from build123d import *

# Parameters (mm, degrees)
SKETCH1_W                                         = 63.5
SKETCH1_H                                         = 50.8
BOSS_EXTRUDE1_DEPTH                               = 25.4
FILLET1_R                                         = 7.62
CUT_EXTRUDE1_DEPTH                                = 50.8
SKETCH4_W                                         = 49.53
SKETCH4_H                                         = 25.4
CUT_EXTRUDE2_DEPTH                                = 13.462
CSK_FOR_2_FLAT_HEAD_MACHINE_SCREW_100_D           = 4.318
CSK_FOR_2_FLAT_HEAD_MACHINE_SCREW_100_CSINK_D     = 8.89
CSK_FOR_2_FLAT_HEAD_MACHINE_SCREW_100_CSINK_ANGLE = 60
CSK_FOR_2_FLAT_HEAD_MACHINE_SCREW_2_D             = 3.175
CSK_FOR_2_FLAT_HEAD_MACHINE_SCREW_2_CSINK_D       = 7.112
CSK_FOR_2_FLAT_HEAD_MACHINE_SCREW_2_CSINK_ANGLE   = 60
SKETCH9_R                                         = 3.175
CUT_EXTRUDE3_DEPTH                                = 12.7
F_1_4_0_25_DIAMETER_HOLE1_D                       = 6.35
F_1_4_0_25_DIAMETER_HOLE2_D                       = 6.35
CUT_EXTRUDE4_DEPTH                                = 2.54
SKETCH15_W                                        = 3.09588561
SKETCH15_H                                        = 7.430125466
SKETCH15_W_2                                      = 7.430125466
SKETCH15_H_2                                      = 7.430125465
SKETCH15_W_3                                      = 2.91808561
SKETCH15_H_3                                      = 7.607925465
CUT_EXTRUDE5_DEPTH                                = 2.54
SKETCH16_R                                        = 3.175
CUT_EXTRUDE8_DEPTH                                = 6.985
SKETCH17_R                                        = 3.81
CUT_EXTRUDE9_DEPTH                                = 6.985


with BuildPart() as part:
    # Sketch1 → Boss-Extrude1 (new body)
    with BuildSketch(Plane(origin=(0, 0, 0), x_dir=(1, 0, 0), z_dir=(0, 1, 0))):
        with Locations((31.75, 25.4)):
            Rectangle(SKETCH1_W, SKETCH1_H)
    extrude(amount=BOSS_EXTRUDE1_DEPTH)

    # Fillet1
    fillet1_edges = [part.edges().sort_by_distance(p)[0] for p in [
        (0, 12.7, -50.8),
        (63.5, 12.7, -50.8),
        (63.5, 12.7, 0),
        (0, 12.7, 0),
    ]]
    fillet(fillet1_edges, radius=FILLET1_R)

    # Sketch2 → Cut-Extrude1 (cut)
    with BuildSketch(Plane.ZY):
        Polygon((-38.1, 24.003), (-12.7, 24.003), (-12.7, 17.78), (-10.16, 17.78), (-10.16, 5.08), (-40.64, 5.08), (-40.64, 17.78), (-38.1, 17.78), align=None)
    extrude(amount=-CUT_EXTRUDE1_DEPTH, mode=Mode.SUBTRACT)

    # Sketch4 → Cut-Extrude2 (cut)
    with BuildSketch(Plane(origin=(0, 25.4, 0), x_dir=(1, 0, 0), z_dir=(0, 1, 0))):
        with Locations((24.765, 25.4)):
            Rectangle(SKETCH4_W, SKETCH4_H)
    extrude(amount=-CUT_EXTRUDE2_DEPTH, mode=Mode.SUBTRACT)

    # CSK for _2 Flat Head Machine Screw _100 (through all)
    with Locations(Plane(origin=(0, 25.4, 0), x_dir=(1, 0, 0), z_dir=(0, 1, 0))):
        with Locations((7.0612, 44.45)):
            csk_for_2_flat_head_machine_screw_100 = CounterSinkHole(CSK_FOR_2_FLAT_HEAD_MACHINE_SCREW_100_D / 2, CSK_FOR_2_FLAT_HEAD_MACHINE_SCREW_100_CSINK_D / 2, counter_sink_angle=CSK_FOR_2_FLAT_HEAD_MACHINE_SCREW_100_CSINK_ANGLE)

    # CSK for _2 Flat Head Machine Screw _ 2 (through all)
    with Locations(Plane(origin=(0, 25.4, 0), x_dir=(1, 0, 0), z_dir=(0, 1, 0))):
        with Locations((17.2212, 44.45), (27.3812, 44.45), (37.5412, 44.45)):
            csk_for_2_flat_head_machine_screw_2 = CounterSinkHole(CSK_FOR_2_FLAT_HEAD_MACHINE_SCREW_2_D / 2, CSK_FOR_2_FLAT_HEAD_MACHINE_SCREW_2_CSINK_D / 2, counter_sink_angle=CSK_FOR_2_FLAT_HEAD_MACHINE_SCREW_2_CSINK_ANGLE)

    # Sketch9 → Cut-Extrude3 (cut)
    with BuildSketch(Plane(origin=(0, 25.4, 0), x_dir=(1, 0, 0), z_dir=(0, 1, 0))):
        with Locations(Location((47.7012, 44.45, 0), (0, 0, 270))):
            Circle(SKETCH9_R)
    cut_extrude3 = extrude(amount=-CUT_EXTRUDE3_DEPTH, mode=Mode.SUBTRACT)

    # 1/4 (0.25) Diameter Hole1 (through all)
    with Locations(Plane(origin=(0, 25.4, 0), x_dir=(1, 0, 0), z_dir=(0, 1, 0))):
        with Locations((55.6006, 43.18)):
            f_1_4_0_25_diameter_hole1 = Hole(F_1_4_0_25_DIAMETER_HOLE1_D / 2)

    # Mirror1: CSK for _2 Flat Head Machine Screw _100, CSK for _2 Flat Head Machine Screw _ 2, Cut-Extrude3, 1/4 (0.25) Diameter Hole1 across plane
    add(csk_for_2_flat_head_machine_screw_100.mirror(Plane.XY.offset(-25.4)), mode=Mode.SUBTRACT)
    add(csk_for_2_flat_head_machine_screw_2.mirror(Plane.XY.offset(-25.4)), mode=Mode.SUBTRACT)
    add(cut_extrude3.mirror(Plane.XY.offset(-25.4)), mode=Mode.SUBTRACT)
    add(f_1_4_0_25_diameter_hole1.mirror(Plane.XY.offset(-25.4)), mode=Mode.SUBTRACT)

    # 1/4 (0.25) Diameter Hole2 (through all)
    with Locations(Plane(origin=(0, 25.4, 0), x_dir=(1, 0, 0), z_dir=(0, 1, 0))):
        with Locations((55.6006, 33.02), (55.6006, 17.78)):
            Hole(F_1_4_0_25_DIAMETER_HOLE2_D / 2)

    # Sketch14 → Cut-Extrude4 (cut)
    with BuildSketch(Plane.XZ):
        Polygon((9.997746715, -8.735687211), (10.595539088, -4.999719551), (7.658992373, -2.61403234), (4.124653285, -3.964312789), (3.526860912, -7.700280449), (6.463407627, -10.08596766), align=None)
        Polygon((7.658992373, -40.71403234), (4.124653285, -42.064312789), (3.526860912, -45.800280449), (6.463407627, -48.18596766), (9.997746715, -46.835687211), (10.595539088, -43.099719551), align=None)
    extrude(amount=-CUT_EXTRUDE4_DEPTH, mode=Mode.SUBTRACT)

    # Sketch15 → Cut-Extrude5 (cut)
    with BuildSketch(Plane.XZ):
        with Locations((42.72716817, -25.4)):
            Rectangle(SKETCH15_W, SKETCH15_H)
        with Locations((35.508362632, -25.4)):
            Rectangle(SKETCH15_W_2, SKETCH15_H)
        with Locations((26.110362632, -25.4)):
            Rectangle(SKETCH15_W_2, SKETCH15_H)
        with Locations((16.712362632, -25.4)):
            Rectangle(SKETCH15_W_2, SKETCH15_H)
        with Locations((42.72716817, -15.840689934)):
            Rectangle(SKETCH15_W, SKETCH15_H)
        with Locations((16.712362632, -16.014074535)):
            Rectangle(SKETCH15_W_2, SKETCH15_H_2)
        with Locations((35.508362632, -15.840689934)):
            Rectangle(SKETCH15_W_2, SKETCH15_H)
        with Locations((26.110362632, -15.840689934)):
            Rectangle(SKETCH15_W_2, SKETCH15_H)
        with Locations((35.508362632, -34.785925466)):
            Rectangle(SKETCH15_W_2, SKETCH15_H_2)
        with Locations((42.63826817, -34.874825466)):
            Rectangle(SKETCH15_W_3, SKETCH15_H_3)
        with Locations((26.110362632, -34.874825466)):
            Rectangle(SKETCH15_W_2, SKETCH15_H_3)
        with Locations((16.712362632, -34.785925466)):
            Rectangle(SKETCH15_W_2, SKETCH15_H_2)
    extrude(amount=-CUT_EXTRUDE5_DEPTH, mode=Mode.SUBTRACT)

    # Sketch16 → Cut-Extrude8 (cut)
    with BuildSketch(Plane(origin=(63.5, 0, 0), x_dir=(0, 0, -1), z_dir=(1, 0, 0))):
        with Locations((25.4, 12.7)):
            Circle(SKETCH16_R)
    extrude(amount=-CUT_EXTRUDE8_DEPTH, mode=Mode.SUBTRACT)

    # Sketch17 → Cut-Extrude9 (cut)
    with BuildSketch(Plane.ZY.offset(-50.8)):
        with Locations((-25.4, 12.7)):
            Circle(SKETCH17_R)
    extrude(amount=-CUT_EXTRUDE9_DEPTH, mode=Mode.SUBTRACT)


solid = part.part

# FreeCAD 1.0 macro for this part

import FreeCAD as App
import Part
import Sketcher
Q = App.Units.Quantity


def edges_at(feature, points):
    """Names of the edges that pass closest to the given points."""
    edges = feature.Shape.Edges
    near = lambda p: min(range(len(edges)), key=lambda i: edges[i].distToShape(Part.Vertex(*p))[0])
    return sorted({f"Edge{near(p) + 1}" for p in points})

doc = App.newDocument("Part")
body = doc.addObject("PartDesign::Body", "Body")

# Sketch on XZ plane
sketch1 = body.newObject("Sketcher::SketchObject", "Sketch")
sketch1.AttachmentSupport = (doc.getObject("XZ_Plane"), [""])
sketch1.MapMode = "FlatFace"
sketch1.addGeometry(Part.LineSegment(App.Vector(0, -51, 0), App.Vector(0, 0, 0)), False)
sketch1.addGeometry(Part.LineSegment(App.Vector(0, 0, 0), App.Vector(64, 0, 0)), False)
sketch1.addGeometry(Part.LineSegment(App.Vector(64, 0, 0), App.Vector(64, -51, 0)), False)
sketch1.addGeometry(Part.LineSegment(App.Vector(64, -51, 0), App.Vector(0, -51, 0)), False)
sketch1.addConstraint(Sketcher.Constraint("Coincident", 0, 2, 1, 1))
sketch1.addConstraint(Sketcher.Constraint("Coincident", 1, 2, 2, 1))
sketch1.addConstraint(Sketcher.Constraint("Coincident", 2, 2, 3, 1))
sketch1.addConstraint(Sketcher.Constraint("Coincident", 3, 2, 0, 1))
sketch1.addConstraint(Sketcher.Constraint("Vertical", 0))
sketch1.addConstraint(Sketcher.Constraint("Horizontal", 1))
sketch1.addConstraint(Sketcher.Constraint("Vertical", 2))
sketch1.addConstraint(Sketcher.Constraint("Horizontal", 3))
sketch1.addConstraint(Sketcher.Constraint("Coincident", 0, 2, -1, 1))
sketch1.addConstraint(Sketcher.Constraint("DistanceY", 0, 1, 0, 2, Q("2 in")))
sketch1.addConstraint(Sketcher.Constraint("DistanceX", 1, 1, 1, 2, Q("2.5 in")))
pad1 = body.newObject("PartDesign::Pad", "Pad")
pad1.Profile = sketch1
pad1.Length = Q("1 in")
pad1.Reversed = True
doc.recompute()

fillet = body.newObject("PartDesign::Fillet", "Fillet")
fillet.Base = (pad1, edges_at(pad1, [
    (0, 12.7, -50.8),
    (63.5, 12.7, -50.8),
    (63.5, 12.7, 0),
    (0, 12.7, 0),
]))
fillet.Radius = Q("0.3 in")

# Sketch on YZ plane
sketch2 = body.newObject("Sketcher::SketchObject", "Sketch001")
sketch2.AttachmentSupport = (doc.getObject("YZ_Plane"), [""])
sketch2.MapMode = "FlatFace"
sketch2.addGeometry(Part.LineSegment(App.Vector(24, -12.7, 0), App.Vector(24, -38.1, 0)), False)
sketch2.addGeometry(Part.LineSegment(App.Vector(24, -38.1, 0), App.Vector(17.8, -38.1, 0)), False)
sketch2.addGeometry(Part.LineSegment(App.Vector(17.8, -38.1, 0), App.Vector(17.8, -40.6, 0)), False)
sketch2.addGeometry(Part.LineSegment(App.Vector(17.8, -40.6, 0), App.Vector(5.1, -40.6, 0)), False)
sketch2.addGeometry(Part.LineSegment(App.Vector(5.1, -40.6, 0), App.Vector(5.1, -10.2, 0)), False)
sketch2.addGeometry(Part.LineSegment(App.Vector(5.1, -10.2, 0), App.Vector(17.8, -10.2, 0)), False)
sketch2.addGeometry(Part.LineSegment(App.Vector(17.8, -10.2, 0), App.Vector(17.8, -12.7, 0)), False)
sketch2.addGeometry(Part.LineSegment(App.Vector(17.8, -12.7, 0), App.Vector(24, -12.7, 0)), False)
sketch2.addConstraint(Sketcher.Constraint("Coincident", 0, 2, 1, 1))
sketch2.addConstraint(Sketcher.Constraint("Coincident", 1, 2, 2, 1))
sketch2.addConstraint(Sketcher.Constraint("Coincident", 2, 2, 3, 1))
sketch2.addConstraint(Sketcher.Constraint("Coincident", 3, 2, 4, 1))
sketch2.addConstraint(Sketcher.Constraint("Coincident", 4, 2, 5, 1))
sketch2.addConstraint(Sketcher.Constraint("Coincident", 5, 2, 6, 1))
sketch2.addConstraint(Sketcher.Constraint("Coincident", 6, 2, 7, 1))
sketch2.addConstraint(Sketcher.Constraint("Coincident", 7, 2, 0, 1))
sketch2.addConstraint(Sketcher.Constraint("Vertical", 0))
sketch2.addConstraint(Sketcher.Constraint("Horizontal", 1))
sketch2.addConstraint(Sketcher.Constraint("Vertical", 2))
sketch2.addConstraint(Sketcher.Constraint("Horizontal", 3))
sketch2.addConstraint(Sketcher.Constraint("Vertical", 4))
sketch2.addConstraint(Sketcher.Constraint("Horizontal", 5))
sketch2.addConstraint(Sketcher.Constraint("Vertical", 6))
sketch2.addConstraint(Sketcher.Constraint("Horizontal", 7))
sketch2.addConstraint(Sketcher.Constraint("Vertical", 2, 2, 5, 2))
sketch2.addConstraint(Sketcher.Constraint("Equal", 2, 6))
sketch2.addConstraint(Sketcher.Constraint("DistanceY", 0, 2, 0, 1, Q("1 in")))
sketch2.addConstraint(Sketcher.Constraint("DistanceX", 3, 2, 3, 1, Q("0.5 in")))
sketch2.addConstraint(Sketcher.Constraint("DistanceY", 2, 2, 2, 1, Q("0.1 in")))
sketch2.addConstraint(Sketcher.Constraint("DistanceY", 0, 2, -1, 1, Q("1.5 in")))
sketch2.addConstraint(Sketcher.Constraint("DistanceX", -1, 1, 1, 2, Q("0.7 in")))
sketch2.addConstraint(Sketcher.Constraint("DistanceX", 1, 2, 1, 1, Q("0.245 in")))
pocket1 = body.newObject("PartDesign::Pocket", "Pocket")
pocket1.Profile = sketch2
pocket1.Length = Q("2 in")
pocket1.Reversed = True

# Sketch on XZ plane
sketch3 = body.newObject("Sketcher::SketchObject", "Sketch002")
sketch3.AttachmentSupport = (doc.getObject("XZ_Plane"), [""])
sketch3.MapMode = "FlatFace"
sketch3.AttachmentOffset = App.Placement(App.Vector(0, 0, -1 * 25.4), App.Rotation())
sketch3.addGeometry(Part.LineSegment(App.Vector(0, -38, 0), App.Vector(0, -13, 0)), False)
sketch3.addGeometry(Part.LineSegment(App.Vector(0, -13, 0), App.Vector(50, -13, 0)), False)
sketch3.addGeometry(Part.LineSegment(App.Vector(50, -13, 0), App.Vector(50, -38, 0)), False)
sketch3.addGeometry(Part.LineSegment(App.Vector(50, -38, 0), App.Vector(0, -38, 0)), False)
sketch3.addConstraint(Sketcher.Constraint("Coincident", 0, 2, 1, 1))
sketch3.addConstraint(Sketcher.Constraint("Coincident", 1, 2, 2, 1))
sketch3.addConstraint(Sketcher.Constraint("Coincident", 2, 2, 3, 1))
sketch3.addConstraint(Sketcher.Constraint("Coincident", 3, 2, 0, 1))
sketch3.addConstraint(Sketcher.Constraint("Vertical", 0))
sketch3.addConstraint(Sketcher.Constraint("Horizontal", 1))
sketch3.addConstraint(Sketcher.Constraint("Vertical", 2))
sketch3.addConstraint(Sketcher.Constraint("Horizontal", 3))
sketch3.addConstraint(Sketcher.Constraint("PointOnObject", 0, 2, -2))
sketch3.addConstraint(Sketcher.Constraint("DistanceY", 0, 1, 0, 2, Q("1 in")))
sketch3.addConstraint(Sketcher.Constraint("DistanceX", 1, 1, 1, 2, Q("1.95 in")))
sketch3.addConstraint(Sketcher.Constraint("DistanceY", 0, 2, -1, 1, Q("0.5 in")))
pocket2 = body.newObject("PartDesign::Pocket", "Pocket001")
pocket2.Profile = sketch3
pocket2.Length = Q("0.53 in")
pocket2.Reversed = True

# Sketch on XZ plane
sketch4 = body.newObject("Sketcher::SketchObject", "Sketch003")
sketch4.AttachmentSupport = (doc.getObject("XZ_Plane"), [""])
sketch4.MapMode = "FlatFace"
sketch4.AttachmentOffset = App.Placement(App.Vector(0, 0, -1 * 25.4), App.Rotation())
sketch4.addGeometry(Part.Circle(App.Vector(7.1, -44.5, 0), App.Vector(0, 0, 1), 2.2), False)
sketch4.addConstraint(Sketcher.Constraint("Diameter", 0, Q("0.17 in")))
sketch4.addConstraint(Sketcher.Constraint("DistanceY", 0, 3, -1, 1, Q("1.75 in")))
sketch4.addConstraint(Sketcher.Constraint("DistanceX", -1, 1, 0, 3, Q("0.278 in")))
doc.recompute()
hole = body.newObject("PartDesign::Hole", "Hole")
hole.Profile = sketch4
hole.ThreadType = "None"
hole.Diameter = Q("0.17 in")
hole.DepthType = "ThroughAll"
hole.HoleCutType = "Countersink"
hole.HoleCutDiameter = Q("0.35 in")
hole.HoleCutCountersinkAngle = 60
hole.Reversed = True

# Sketch on XZ plane
sketch5 = body.newObject("Sketcher::SketchObject", "Sketch004")
sketch5.AttachmentSupport = (doc.getObject("XZ_Plane"), [""])
sketch5.MapMode = "FlatFace"
sketch5.AttachmentOffset = App.Placement(App.Vector(0, 0, -1 * 25.4), App.Rotation())
sketch5.addGeometry(Part.Circle(App.Vector(17.2, -44.5, 0), App.Vector(0, 0, 1), 1.6), False)
sketch5.addGeometry(Part.Circle(App.Vector(27.4, -44.5, 0), App.Vector(0, 0, 1), 1.6), False)
sketch5.addGeometry(Part.Circle(App.Vector(37.5, -44.5, 0), App.Vector(0, 0, 1), 1.6), False)
sketch5.addConstraint(Sketcher.Constraint("Equal", 0, 1))
sketch5.addConstraint(Sketcher.Constraint("Equal", 1, 2))
sketch5.addConstraint(Sketcher.Constraint("Horizontal", 0, 3, 1, 3))
sketch5.addConstraint(Sketcher.Constraint("Horizontal", 1, 3, 2, 3))
sketch5.addConstraint(Sketcher.Constraint("Diameter", 0, Q("0.125 in")))
sketch5.addConstraint(Sketcher.Constraint("DistanceX", 0, 3, 1, 3, Q("0.4 in")))
sketch5.addConstraint(Sketcher.Constraint("DistanceX", 1, 3, 2, 3, Q("0.4 in")))
sketch5.addConstraint(Sketcher.Constraint("DistanceY", 0, 3, -1, 1, Q("1.75 in")))
sketch5.addConstraint(Sketcher.Constraint("DistanceX", -1, 1, 0, 3, Q("0.678 in")))
doc.recompute()
hole2 = body.newObject("PartDesign::Hole", "Hole001")
hole2.Profile = sketch5
hole2.ThreadType = "None"
hole2.Diameter = Q("0.125 in")
hole2.DepthType = "ThroughAll"
hole2.HoleCutType = "Countersink"
hole2.HoleCutDiameter = Q("0.28 in")
hole2.HoleCutCountersinkAngle = 60
hole2.Reversed = True

# Sketch on XZ plane
sketch6 = body.newObject("Sketcher::SketchObject", "Sketch005")
sketch6.AttachmentSupport = (doc.getObject("XZ_Plane"), [""])
sketch6.MapMode = "FlatFace"
sketch6.AttachmentOffset = App.Placement(App.Vector(0, 0, -1 * 25.4), App.Rotation())
sketch6.addGeometry(Part.Circle(App.Vector(47.7, -44.5, 0), App.Vector(0, 0, 1), 3.2), False)
sketch6.addConstraint(Sketcher.Constraint("Diameter", 0, Q("0.25 in")))
sketch6.addConstraint(Sketcher.Constraint("DistanceY", 0, 3, -1, 1, Q("1.75 in")))
sketch6.addConstraint(Sketcher.Constraint("DistanceX", -1, 1, 0, 3, Q("1.878 in")))
pocket3 = body.newObject("PartDesign::Pocket", "Pocket002")
pocket3.Profile = sketch6
pocket3.Length = Q("0.5 in")
pocket3.Reversed = True

# Sketch on XZ plane
sketch7 = body.newObject("Sketcher::SketchObject", "Sketch006")
sketch7.AttachmentSupport = (doc.getObject("XZ_Plane"), [""])
sketch7.MapMode = "FlatFace"
sketch7.AttachmentOffset = App.Placement(App.Vector(0, 0, -1 * 25.4), App.Rotation())
sketch7.addGeometry(Part.Circle(App.Vector(55.6, -43.2, 0), App.Vector(0, 0, 1), 3.2), False)
sketch7.addConstraint(Sketcher.Constraint("Diameter", 0, Q("0.25 in")))
sketch7.addConstraint(Sketcher.Constraint("DistanceY", 0, 3, -1, 1, Q("1.7 in")))
sketch7.addConstraint(Sketcher.Constraint("DistanceX", -1, 1, 0, 3, Q("2.189 in")))
doc.recompute()
hole3 = body.newObject("PartDesign::Hole", "Hole002")
hole3.Profile = sketch7
hole3.ThreadType = "None"
hole3.Diameter = Q("0.25 in")
hole3.DepthType = "ThroughAll"
hole3.Reversed = True
doc.recompute()

datumplane = body.newObject("PartDesign::Plane", "DatumPlane")
datumplane.AttachmentSupport = (doc.getObject("XY_Plane"), [""])
datumplane.MapMode = "FlatFace"
datumplane.AttachmentOffset = App.Placement(App.Vector(0, 0, -1 * 25.4), App.Rotation())
mirrored = body.newObject("PartDesign::Mirrored", "Mirrored")
mirrored.Originals = [hole, hole2, pocket3, hole3]
mirrored.MirrorPlane = (datumplane, [""])
body.Tip = mirrored

# Sketch on XZ plane
sketch8 = body.newObject("Sketcher::SketchObject", "Sketch007")
sketch8.AttachmentSupport = (doc.getObject("XZ_Plane"), [""])
sketch8.MapMode = "FlatFace"
sketch8.AttachmentOffset = App.Placement(App.Vector(0, 0, -1 * 25.4), App.Rotation())
sketch8.addGeometry(Part.Circle(App.Vector(55.6, -33, 0), App.Vector(0, 0, 1), 3.2), False)
sketch8.addGeometry(Part.Circle(App.Vector(55.6, -17.8, 0), App.Vector(0, 0, 1), 3.2), False)
sketch8.addConstraint(Sketcher.Constraint("Equal", 0, 1))
sketch8.addConstraint(Sketcher.Constraint("Vertical", 0, 3, 1, 3))
sketch8.addConstraint(Sketcher.Constraint("Diameter", 0, Q("0.25 in")))
sketch8.addConstraint(Sketcher.Constraint("DistanceY", 0, 3, -1, 1, Q("1.3 in")))
sketch8.addConstraint(Sketcher.Constraint("DistanceY", 1, 3, -1, 1, Q("0.7 in")))
sketch8.addConstraint(Sketcher.Constraint("DistanceX", -1, 1, 0, 3, Q("2.189 in")))
doc.recompute()
hole4 = body.newObject("PartDesign::Hole", "Hole003")
hole4.Profile = sketch8
hole4.ThreadType = "None"
hole4.Diameter = Q("0.25 in")
hole4.DepthType = "ThroughAll"
hole4.Reversed = True

# Sketch on XZ plane
sketch9 = body.newObject("Sketcher::SketchObject", "Sketch008")
sketch9.AttachmentSupport = (doc.getObject("XZ_Plane"), [""])
sketch9.MapMode = "FlatFace"
sketch9.addGeometry(Part.LineSegment(App.Vector(10, -8.7, 0), App.Vector(10.6, -5, 0)), False)
sketch9.addGeometry(Part.LineSegment(App.Vector(10.6, -5, 0), App.Vector(7.7, -2.6, 0)), False)
sketch9.addGeometry(Part.LineSegment(App.Vector(7.7, -2.6, 0), App.Vector(4.1, -4, 0)), False)
sketch9.addGeometry(Part.LineSegment(App.Vector(4.1, -4, 0), App.Vector(3.5, -7.7, 0)), False)
sketch9.addGeometry(Part.LineSegment(App.Vector(3.5, -7.7, 0), App.Vector(6.5, -10.1, 0)), False)
sketch9.addGeometry(Part.LineSegment(App.Vector(6.5, -10.1, 0), App.Vector(10, -8.7, 0)), False)
sketch9.addGeometry(Part.LineSegment(App.Vector(7.7, -40.7, 0), App.Vector(4.1, -42.1, 0)), False)
sketch9.addGeometry(Part.LineSegment(App.Vector(4.1, -42.1, 0), App.Vector(3.5, -45.8, 0)), False)
sketch9.addGeometry(Part.LineSegment(App.Vector(3.5, -45.8, 0), App.Vector(6.5, -48.2, 0)), False)
sketch9.addGeometry(Part.LineSegment(App.Vector(6.5, -48.2, 0), App.Vector(10, -46.8, 0)), False)
sketch9.addGeometry(Part.LineSegment(App.Vector(10, -46.8, 0), App.Vector(10.6, -43.1, 0)), False)
sketch9.addGeometry(Part.LineSegment(App.Vector(10.6, -43.1, 0), App.Vector(7.7, -40.7, 0)), False)
sketch9.addConstraint(Sketcher.Constraint("Coincident", 0, 2, 1, 1))
sketch9.addConstraint(Sketcher.Constraint("Coincident", 1, 2, 2, 1))
sketch9.addConstraint(Sketcher.Constraint("Coincident", 2, 2, 3, 1))
sketch9.addConstraint(Sketcher.Constraint("Coincident", 3, 2, 4, 1))
sketch9.addConstraint(Sketcher.Constraint("Coincident", 4, 2, 5, 1))
sketch9.addConstraint(Sketcher.Constraint("Coincident", 5, 2, 0, 1))
sketch9.addConstraint(Sketcher.Constraint("Coincident", 6, 2, 7, 1))
sketch9.addConstraint(Sketcher.Constraint("Coincident", 7, 2, 8, 1))
sketch9.addConstraint(Sketcher.Constraint("Coincident", 8, 2, 9, 1))
sketch9.addConstraint(Sketcher.Constraint("Coincident", 9, 2, 10, 1))
sketch9.addConstraint(Sketcher.Constraint("Coincident", 10, 2, 11, 1))
sketch9.addConstraint(Sketcher.Constraint("Coincident", 11, 2, 6, 1))
sketch9.addConstraint(Sketcher.Constraint("Parallel", 0, 3))
sketch9.addConstraint(Sketcher.Constraint("Parallel", 1, 4))
sketch9.addConstraint(Sketcher.Constraint("Parallel", 2, 5))
sketch9.addConstraint(Sketcher.Constraint("Parallel", 5, 6))
sketch9.addConstraint(Sketcher.Constraint("Parallel", 3, 7))
sketch9.addConstraint(Sketcher.Constraint("Parallel", 4, 8))
sketch9.addConstraint(Sketcher.Constraint("Parallel", 6, 9))
sketch9.addConstraint(Sketcher.Constraint("Parallel", 7, 10))
sketch9.addConstraint(Sketcher.Constraint("Parallel", 8, 11))
sketch9.addConstraint(Sketcher.Constraint("Vertical", 2, 2, 6, 2))
sketch9.addConstraint(Sketcher.Constraint("Vertical", 3, 2, 7, 2))
sketch9.addConstraint(Sketcher.Constraint("Vertical", 4, 2, 8, 2))
sketch9.addConstraint(Sketcher.Constraint("Vertical", 5, 2, 9, 2))
sketch9.addConstraint(Sketcher.Constraint("Vertical", 0, 2, 10, 2))
sketch9.addConstraint(Sketcher.Constraint("Equal", 0, 1))
sketch9.addConstraint(Sketcher.Constraint("Equal", 1, 2))
sketch9.addConstraint(Sketcher.Constraint("Equal", 2, 3))
sketch9.addConstraint(Sketcher.Constraint("DistanceY", 6, 2, 2, 2, Q("1.5 in")))
sketch9.addConstraint(Sketcher.Constraint("Distance", 0, Q("3.783492 mm")))
sketch9.addConstraint(Sketcher.Constraint("DistanceX", -1, 1, 0, 2, Q("10.595539 mm")))
sketch9.addConstraint(Sketcher.Constraint("DistanceY", 0, 2, -1, 1, Q("4.99972 mm")))
sketch9.addConstraint(Sketcher.Constraint("DistanceX", -1, 1, 3, 2, Q("3.526861 mm")))
sketch9.addConstraint(Sketcher.Constraint("DistanceY", 3, 2, -1, 1, Q("7.70028 mm")))
sketch9.addConstraint(Sketcher.Constraint("DistanceX", 2, 2, 1, 2, Q("3.534339 mm")))
pocket4 = body.newObject("PartDesign::Pocket", "Pocket003")
pocket4.Profile = sketch9
pocket4.Length = Q("0.1 in")

# Sketch on XZ plane
sketch10 = body.newObject("Sketcher::SketchObject", "Sketch009")
sketch10.AttachmentSupport = (doc.getObject("XZ_Plane"), [""])
sketch10.MapMode = "FlatFace"
sketch10.addGeometry(Part.LineSegment(App.Vector(41.2, -21.7, 0), App.Vector(41.2, -29.1, 0)), False)
sketch10.addGeometry(Part.LineSegment(App.Vector(41.2, -29.1, 0), App.Vector(44.3, -29.1, 0)), False)
sketch10.addGeometry(Part.LineSegment(App.Vector(44.3, -29.1, 0), App.Vector(44.3, -21.7, 0)), False)
sketch10.addGeometry(Part.LineSegment(App.Vector(44.3, -21.7, 0), App.Vector(41.2, -21.7, 0)), False)
sketch10.addGeometry(Part.LineSegment(App.Vector(31.8, -21.7, 0), App.Vector(31.8, -29.1, 0)), False)
sketch10.addGeometry(Part.LineSegment(App.Vector(31.8, -29.1, 0), App.Vector(39.2, -29.1, 0)), False)
sketch10.addGeometry(Part.LineSegment(App.Vector(39.2, -29.1, 0), App.Vector(39.2, -21.7, 0)), False)
sketch10.addGeometry(Part.LineSegment(App.Vector(39.2, -21.7, 0), App.Vector(31.8, -21.7, 0)), False)
sketch10.addGeometry(Part.LineSegment(App.Vector(22.4, -21.7, 0), App.Vector(22.4, -29.1, 0)), False)
sketch10.addGeometry(Part.LineSegment(App.Vector(22.4, -29.1, 0), App.Vector(29.8, -29.1, 0)), False)
sketch10.addGeometry(Part.LineSegment(App.Vector(29.8, -29.1, 0), App.Vector(29.8, -21.7, 0)), False)
sketch10.addGeometry(Part.LineSegment(App.Vector(29.8, -21.7, 0), App.Vector(22.4, -21.7, 0)), False)
sketch10.addGeometry(Part.LineSegment(App.Vector(13, -21.7, 0), App.Vector(13, -29.1, 0)), False)
sketch10.addGeometry(Part.LineSegment(App.Vector(13, -29.1, 0), App.Vector(20.4, -29.1, 0)), False)
sketch10.addGeometry(Part.LineSegment(App.Vector(20.4, -29.1, 0), App.Vector(20.4, -21.7, 0)), False)
sketch10.addGeometry(Part.LineSegment(App.Vector(20.4, -21.7, 0), App.Vector(13, -21.7, 0)), False)
sketch10.addGeometry(Part.LineSegment(App.Vector(41.2, -12.1, 0), App.Vector(41.2, -19.6, 0)), False)
sketch10.addGeometry(Part.LineSegment(App.Vector(41.2, -19.6, 0), App.Vector(44.3, -19.6, 0)), False)
sketch10.addGeometry(Part.LineSegment(App.Vector(44.3, -19.6, 0), App.Vector(44.3, -12.1, 0)), False)
sketch10.addGeometry(Part.LineSegment(App.Vector(44.3, -12.1, 0), App.Vector(41.2, -12.1, 0)), False)
sketch10.addGeometry(Part.LineSegment(App.Vector(13, -12.3, 0), App.Vector(13, -19.7, 0)), False)
sketch10.addGeometry(Part.LineSegment(App.Vector(13, -19.7, 0), App.Vector(20.4, -19.7, 0)), False)
sketch10.addGeometry(Part.LineSegment(App.Vector(20.4, -19.7, 0), App.Vector(20.4, -12.3, 0)), False)
sketch10.addGeometry(Part.LineSegment(App.Vector(20.4, -12.3, 0), App.Vector(13, -12.3, 0)), False)
sketch10.addGeometry(Part.LineSegment(App.Vector(31.8, -12.1, 0), App.Vector(31.8, -19.6, 0)), False)
sketch10.addGeometry(Part.LineSegment(App.Vector(31.8, -19.6, 0), App.Vector(39.2, -19.6, 0)), False)
sketch10.addGeometry(Part.LineSegment(App.Vector(39.2, -19.6, 0), App.Vector(39.2, -12.1, 0)), False)
sketch10.addGeometry(Part.LineSegment(App.Vector(39.2, -12.1, 0), App.Vector(31.8, -12.1, 0)), False)
sketch10.addGeometry(Part.LineSegment(App.Vector(22.4, -12.1, 0), App.Vector(22.4, -19.6, 0)), False)
sketch10.addGeometry(Part.LineSegment(App.Vector(22.4, -19.6, 0), App.Vector(29.8, -19.6, 0)), False)
sketch10.addGeometry(Part.LineSegment(App.Vector(29.8, -19.6, 0), App.Vector(29.8, -12.1, 0)), False)
sketch10.addGeometry(Part.LineSegment(App.Vector(29.8, -12.1, 0), App.Vector(22.4, -12.1, 0)), False)
sketch10.addGeometry(Part.LineSegment(App.Vector(31.8, -31.1, 0), App.Vector(31.8, -38.5, 0)), False)
sketch10.addGeometry(Part.LineSegment(App.Vector(31.8, -38.5, 0), App.Vector(39.2, -38.5, 0)), False)
sketch10.addGeometry(Part.LineSegment(App.Vector(39.2, -38.5, 0), App.Vector(39.2, -31.1, 0)), False)
sketch10.addGeometry(Part.LineSegment(App.Vector(39.2, -31.1, 0), App.Vector(31.8, -31.1, 0)), False)
sketch10.addGeometry(Part.LineSegment(App.Vector(41.2, -31.1, 0), App.Vector(41.2, -38.7, 0)), False)
sketch10.addGeometry(Part.LineSegment(App.Vector(41.2, -38.7, 0), App.Vector(44.1, -38.7, 0)), False)
sketch10.addGeometry(Part.LineSegment(App.Vector(44.1, -38.7, 0), App.Vector(44.1, -31.1, 0)), False)
sketch10.addGeometry(Part.LineSegment(App.Vector(44.1, -31.1, 0), App.Vector(41.2, -31.1, 0)), False)
sketch10.addGeometry(Part.LineSegment(App.Vector(22.4, -31.1, 0), App.Vector(22.4, -38.7, 0)), False)
sketch10.addGeometry(Part.LineSegment(App.Vector(22.4, -38.7, 0), App.Vector(29.8, -38.7, 0)), False)
sketch10.addGeometry(Part.LineSegment(App.Vector(29.8, -38.7, 0), App.Vector(29.8, -31.1, 0)), False)
sketch10.addGeometry(Part.LineSegment(App.Vector(29.8, -31.1, 0), App.Vector(22.4, -31.1, 0)), False)
sketch10.addGeometry(Part.LineSegment(App.Vector(13, -31.1, 0), App.Vector(13, -38.5, 0)), False)
sketch10.addGeometry(Part.LineSegment(App.Vector(13, -38.5, 0), App.Vector(20.4, -38.5, 0)), False)
sketch10.addGeometry(Part.LineSegment(App.Vector(20.4, -38.5, 0), App.Vector(20.4, -31.1, 0)), False)
sketch10.addGeometry(Part.LineSegment(App.Vector(20.4, -31.1, 0), App.Vector(13, -31.1, 0)), False)
sketch10.addConstraint(Sketcher.Constraint("Coincident", 0, 2, 1, 1))
sketch10.addConstraint(Sketcher.Constraint("Coincident", 1, 2, 2, 1))
sketch10.addConstraint(Sketcher.Constraint("Coincident", 2, 2, 3, 1))
sketch10.addConstraint(Sketcher.Constraint("Coincident", 3, 2, 0, 1))
sketch10.addConstraint(Sketcher.Constraint("Coincident", 4, 2, 5, 1))
sketch10.addConstraint(Sketcher.Constraint("Coincident", 5, 2, 6, 1))
sketch10.addConstraint(Sketcher.Constraint("Coincident", 6, 2, 7, 1))
sketch10.addConstraint(Sketcher.Constraint("Coincident", 7, 2, 4, 1))
sketch10.addConstraint(Sketcher.Constraint("Coincident", 8, 2, 9, 1))
sketch10.addConstraint(Sketcher.Constraint("Coincident", 9, 2, 10, 1))
sketch10.addConstraint(Sketcher.Constraint("Coincident", 10, 2, 11, 1))
sketch10.addConstraint(Sketcher.Constraint("Coincident", 11, 2, 8, 1))
sketch10.addConstraint(Sketcher.Constraint("Coincident", 12, 2, 13, 1))
sketch10.addConstraint(Sketcher.Constraint("Coincident", 13, 2, 14, 1))
sketch10.addConstraint(Sketcher.Constraint("Coincident", 14, 2, 15, 1))
sketch10.addConstraint(Sketcher.Constraint("Coincident", 15, 2, 12, 1))
sketch10.addConstraint(Sketcher.Constraint("Coincident", 16, 2, 17, 1))
sketch10.addConstraint(Sketcher.Constraint("Coincident", 17, 2, 18, 1))
sketch10.addConstraint(Sketcher.Constraint("Coincident", 18, 2, 19, 1))
sketch10.addConstraint(Sketcher.Constraint("Coincident", 19, 2, 16, 1))
sketch10.addConstraint(Sketcher.Constraint("Coincident", 20, 2, 21, 1))
sketch10.addConstraint(Sketcher.Constraint("Coincident", 21, 2, 22, 1))
sketch10.addConstraint(Sketcher.Constraint("Coincident", 22, 2, 23, 1))
sketch10.addConstraint(Sketcher.Constraint("Coincident", 23, 2, 20, 1))
sketch10.addConstraint(Sketcher.Constraint("Coincident", 24, 2, 25, 1))
sketch10.addConstraint(Sketcher.Constraint("Coincident", 25, 2, 26, 1))
sketch10.addConstraint(Sketcher.Constraint("Coincident", 26, 2, 27, 1))
sketch10.addConstraint(Sketcher.Constraint("Coincident", 27, 2, 24, 1))
sketch10.addConstraint(Sketcher.Constraint("Coincident", 28, 2, 29, 1))
sketch10.addConstraint(Sketcher.Constraint("Coincident", 29, 2, 30, 1))
sketch10.addConstraint(Sketcher.Constraint("Coincident", 30, 2, 31, 1))
sketch10.addConstraint(Sketcher.Constraint("Coincident", 31, 2, 28, 1))
sketch10.addConstraint(Sketcher.Constraint("Coincident", 32, 2, 33, 1))
sketch10.addConstraint(Sketcher.Constraint("Coincident", 33, 2, 34, 1))
sketch10.addConstraint(Sketcher.Constraint("Coincident", 34, 2, 35, 1))
sketch10.addConstraint(Sketcher.Constraint("Coincident", 35, 2, 32, 1))
sketch10.addConstraint(Sketcher.Constraint("Coincident", 36, 2, 37, 1))
sketch10.addConstraint(Sketcher.Constraint("Coincident", 37, 2, 38, 1))
sketch10.addConstraint(Sketcher.Constraint("Coincident", 38, 2, 39, 1))
sketch10.addConstraint(Sketcher.Constraint("Coincident", 39, 2, 36, 1))
sketch10.addConstraint(Sketcher.Constraint("Coincident", 40, 2, 41, 1))
sketch10.addConstraint(Sketcher.Constraint("Coincident", 41, 2, 42, 1))
sketch10.addConstraint(Sketcher.Constraint("Coincident", 42, 2, 43, 1))
sketch10.addConstraint(Sketcher.Constraint("Coincident", 43, 2, 40, 1))
sketch10.addConstraint(Sketcher.Constraint("Coincident", 44, 2, 45, 1))
sketch10.addConstraint(Sketcher.Constraint("Coincident", 45, 2, 46, 1))
sketch10.addConstraint(Sketcher.Constraint("Coincident", 46, 2, 47, 1))
sketch10.addConstraint(Sketcher.Constraint("Coincident", 47, 2, 44, 1))
sketch10.addConstraint(Sketcher.Constraint("Vertical", 0))
sketch10.addConstraint(Sketcher.Constraint("Horizontal", 1))
sketch10.addConstraint(Sketcher.Constraint("Vertical", 2))
sketch10.addConstraint(Sketcher.Constraint("Horizontal", 3))
sketch10.addConstraint(Sketcher.Constraint("Vertical", 4))
sketch10.addConstraint(Sketcher.Constraint("Horizontal", 5))
sketch10.addConstraint(Sketcher.Constraint("Vertical", 6))
sketch10.addConstraint(Sketcher.Constraint("Horizontal", 7))
sketch10.addConstraint(Sketcher.Constraint("Vertical", 8))
sketch10.addConstraint(Sketcher.Constraint("Horizontal", 9))
sketch10.addConstraint(Sketcher.Constraint("Vertical", 10))
sketch10.addConstraint(Sketcher.Constraint("Horizontal", 11))
sketch10.addConstraint(Sketcher.Constraint("Vertical", 12))
sketch10.addConstraint(Sketcher.Constraint("Horizontal", 13))
sketch10.addConstraint(Sketcher.Constraint("Vertical", 14))
sketch10.addConstraint(Sketcher.Constraint("Horizontal", 15))
sketch10.addConstraint(Sketcher.Constraint("Vertical", 16))
sketch10.addConstraint(Sketcher.Constraint("Horizontal", 17))
sketch10.addConstraint(Sketcher.Constraint("Vertical", 18))
sketch10.addConstraint(Sketcher.Constraint("Horizontal", 19))
sketch10.addConstraint(Sketcher.Constraint("Vertical", 20))
sketch10.addConstraint(Sketcher.Constraint("Horizontal", 21))
sketch10.addConstraint(Sketcher.Constraint("Vertical", 22))
sketch10.addConstraint(Sketcher.Constraint("Horizontal", 23))
sketch10.addConstraint(Sketcher.Constraint("Vertical", 24))
sketch10.addConstraint(Sketcher.Constraint("Horizontal", 25))
sketch10.addConstraint(Sketcher.Constraint("Vertical", 26))
sketch10.addConstraint(Sketcher.Constraint("Horizontal", 27))
sketch10.addConstraint(Sketcher.Constraint("Vertical", 28))
sketch10.addConstraint(Sketcher.Constraint("Horizontal", 29))
sketch10.addConstraint(Sketcher.Constraint("Vertical", 30))
sketch10.addConstraint(Sketcher.Constraint("Horizontal", 31))
sketch10.addConstraint(Sketcher.Constraint("Vertical", 32))
sketch10.addConstraint(Sketcher.Constraint("Horizontal", 33))
sketch10.addConstraint(Sketcher.Constraint("Vertical", 34))
sketch10.addConstraint(Sketcher.Constraint("Horizontal", 35))
sketch10.addConstraint(Sketcher.Constraint("Vertical", 36))
sketch10.addConstraint(Sketcher.Constraint("Horizontal", 37))
sketch10.addConstraint(Sketcher.Constraint("Vertical", 38))
sketch10.addConstraint(Sketcher.Constraint("Horizontal", 39))
sketch10.addConstraint(Sketcher.Constraint("Vertical", 40))
sketch10.addConstraint(Sketcher.Constraint("Horizontal", 41))
sketch10.addConstraint(Sketcher.Constraint("Vertical", 42))
sketch10.addConstraint(Sketcher.Constraint("Horizontal", 43))
sketch10.addConstraint(Sketcher.Constraint("Vertical", 44))
sketch10.addConstraint(Sketcher.Constraint("Horizontal", 45))
sketch10.addConstraint(Sketcher.Constraint("Vertical", 46))
sketch10.addConstraint(Sketcher.Constraint("Horizontal", 47))
sketch10.addConstraint(Sketcher.Constraint("Horizontal", 1, 2, 4, 2))
sketch10.addConstraint(Sketcher.Constraint("Horizontal", 3, 2, 6, 2))
sketch10.addConstraint(Sketcher.Constraint("Horizontal", 5, 2, 8, 2))
sketch10.addConstraint(Sketcher.Constraint("Horizontal", 7, 2, 10, 2))
sketch10.addConstraint(Sketcher.Constraint("Horizontal", 9, 2, 12, 2))
sketch10.addConstraint(Sketcher.Constraint("Horizontal", 11, 2, 14, 2))
sketch10.addConstraint(Sketcher.Constraint("Horizontal", 17, 2, 24, 2))
sketch10.addConstraint(Sketcher.Constraint("Horizontal", 19, 2, 26, 2))
sketch10.addConstraint(Sketcher.Constraint("Horizontal", 25, 2, 28, 2))
sketch10.addConstraint(Sketcher.Constraint("Horizontal", 27, 2, 30, 2))
sketch10.addConstraint(Sketcher.Constraint("Horizontal", 35, 2, 38, 2))
sketch10.addConstraint(Sketcher.Constraint("Horizontal", 37, 2, 40, 2))
sketch10.addConstraint(Sketcher.Constraint("Horizontal", 39, 2, 42, 2))
sketch10.addConstraint(Sketcher.Constraint("Horizontal", 33, 2, 44, 2))
sketch10.addConstraint(Sketcher.Constraint("Horizontal", 43, 2, 46, 2))
sketch10.addConstraint(Sketcher.Constraint("Vertical", 3, 2, 16, 2))
sketch10.addConstraint(Sketcher.Constraint("Vertical", 2, 2, 17, 2))
sketch10.addConstraint(Sketcher.Constraint("Vertical", 15, 2, 20, 2))
sketch10.addConstraint(Sketcher.Constraint("Vertical", 14, 2, 21, 2))
sketch10.addConstraint(Sketcher.Constraint("Vertical", 7, 2, 24, 2))
sketch10.addConstraint(Sketcher.Constraint("Vertical", 6, 2, 25, 2))
sketch10.addConstraint(Sketcher.Constraint("Vertical", 11, 2, 28, 2))
sketch10.addConstraint(Sketcher.Constraint("Vertical", 10, 2, 29, 2))
sketch10.addConstraint(Sketcher.Constraint("Vertical", 27, 2, 32, 2))
sketch10.addConstraint(Sketcher.Constraint("Vertical", 26, 2, 33, 2))
sketch10.addConstraint(Sketcher.Constraint("Vertical", 19, 2, 36, 2))
sketch10.addConstraint(Sketcher.Constraint("Vertical", 31, 2, 40, 2))
sketch10.addConstraint(Sketcher.Constraint("Vertical", 30, 2, 41, 2))
sketch10.addConstraint(Sketcher.Constraint("Vertical", 23, 2, 44, 2))
sketch10.addConstraint(Sketcher.Constraint("Vertical", 22, 2, 45, 2))
sketch10.addConstraint(Sketcher.Constraint("Equal", 7, 9))
sketch10.addConstraint(Sketcher.Constraint("Equal", 11, 13))
sketch10.addConstraint(Sketcher.Constraint("Equal", 47, 0))
sketch10.addConstraint(Sketcher.Constraint("Equal", 14, 16))
sketch10.addConstraint(Sketcher.Constraint("Equal", 18, 20))
sketch10.addConstraint(Sketcher.Constraint("Equal", 30, 32))
sketch10.addConstraint(Sketcher.Constraint("DistanceX", 8, 2, 4, 2, Q("0.37 in")))
sketch10.addConstraint(Sketcher.Constraint("DistanceX", 12, 2, 8, 2, Q("0.37 in")))
sketch10.addConstraint(Sketcher.Constraint("DistanceX", 5, 2, 0, 2, Q("0.077 in")))
sketch10.addConstraint(Sketcher.Constraint("DistanceY", 15, 2, 20, 2, Q("0.077 in")))
sketch10.addConstraint(Sketcher.Constraint("DistanceY", 34, 2, 5, 2, Q("0.077 in")))
sketch10.addConstraint(Sketcher.Constraint("DistanceY", 36, 2, 33, 2, Q("0.007 in")))
sketch10.addConstraint(Sketcher.Constraint("DistanceX", 37, 2, 1, 2, Q("0.007 in")))
sketch10.addConstraint(Sketcher.Constraint("DistanceX", -1, 1, 4, 2, Q("31.7933 mm")))
sketch10.addConstraint(Sketcher.Constraint("DistanceX", 1, 1, 1, 2, Q("3.095886 mm")))
sketch10.addConstraint(Sketcher.Constraint("DistanceX", 5, 1, 5, 2, Q("7.430125 mm")))
sketch10.addConstraint(Sketcher.Constraint("DistanceY", 22, 2, -1, 1, Q("12.299012 mm")))
sketch10.addConstraint(Sketcher.Constraint("DistanceY", 0, 2, 16, 2, Q("9.55931 mm")))
pocket5 = body.newObject("PartDesign::Pocket", "Pocket004")
pocket5.Profile = sketch10
pocket5.Length = Q("0.1 in")

# Sketch on YZ plane
sketch11 = body.newObject("Sketcher::SketchObject", "Sketch010")
sketch11.AttachmentSupport = (doc.getObject("YZ_Plane"), [""])
sketch11.MapMode = "FlatFace"
sketch11.AttachmentOffset = App.Placement(App.Vector(0, 0, 2.5 * 25.4), App.Rotation())
sketch11.addGeometry(Part.Circle(App.Vector(12.7, -25.4, 0), App.Vector(0, 0, 1), 3.2), False)
sketch11.addConstraint(Sketcher.Constraint("Diameter", 0, Q("0.25 in")))
sketch11.addConstraint(Sketcher.Constraint("DistanceY", 0, 3, -1, 1, Q("1 in")))
sketch11.addConstraint(Sketcher.Constraint("DistanceX", -1, 1, 0, 3, Q("0.5 in")))
pocket6 = body.newObject("PartDesign::Pocket", "Pocket005")
pocket6.Profile = sketch11
pocket6.Length = Q("0.275 in")

# Sketch on YZ plane
sketch12 = body.newObject("Sketcher::SketchObject", "Sketch011")
sketch12.AttachmentSupport = (doc.getObject("YZ_Plane"), [""])
sketch12.MapMode = "FlatFace"
sketch12.AttachmentOffset = App.Placement(App.Vector(0, 0, 2 * 25.4), App.Rotation())
sketch12.addGeometry(Part.Circle(App.Vector(12.7, -25.4, 0), App.Vector(0, 0, 1), 3.8), False)
sketch12.addConstraint(Sketcher.Constraint("Diameter", 0, Q("0.3 in")))
sketch12.addConstraint(Sketcher.Constraint("DistanceY", 0, 3, -1, 1, Q("1 in")))
sketch12.addConstraint(Sketcher.Constraint("DistanceX", -1, 1, 0, 3, Q("0.5 in")))
pocket7 = body.newObject("PartDesign::Pocket", "Pocket006")
pocket7.Profile = sketch12
pocket7.Length = Q("0.275 in")
pocket7.Reversed = True

doc.recompute()
